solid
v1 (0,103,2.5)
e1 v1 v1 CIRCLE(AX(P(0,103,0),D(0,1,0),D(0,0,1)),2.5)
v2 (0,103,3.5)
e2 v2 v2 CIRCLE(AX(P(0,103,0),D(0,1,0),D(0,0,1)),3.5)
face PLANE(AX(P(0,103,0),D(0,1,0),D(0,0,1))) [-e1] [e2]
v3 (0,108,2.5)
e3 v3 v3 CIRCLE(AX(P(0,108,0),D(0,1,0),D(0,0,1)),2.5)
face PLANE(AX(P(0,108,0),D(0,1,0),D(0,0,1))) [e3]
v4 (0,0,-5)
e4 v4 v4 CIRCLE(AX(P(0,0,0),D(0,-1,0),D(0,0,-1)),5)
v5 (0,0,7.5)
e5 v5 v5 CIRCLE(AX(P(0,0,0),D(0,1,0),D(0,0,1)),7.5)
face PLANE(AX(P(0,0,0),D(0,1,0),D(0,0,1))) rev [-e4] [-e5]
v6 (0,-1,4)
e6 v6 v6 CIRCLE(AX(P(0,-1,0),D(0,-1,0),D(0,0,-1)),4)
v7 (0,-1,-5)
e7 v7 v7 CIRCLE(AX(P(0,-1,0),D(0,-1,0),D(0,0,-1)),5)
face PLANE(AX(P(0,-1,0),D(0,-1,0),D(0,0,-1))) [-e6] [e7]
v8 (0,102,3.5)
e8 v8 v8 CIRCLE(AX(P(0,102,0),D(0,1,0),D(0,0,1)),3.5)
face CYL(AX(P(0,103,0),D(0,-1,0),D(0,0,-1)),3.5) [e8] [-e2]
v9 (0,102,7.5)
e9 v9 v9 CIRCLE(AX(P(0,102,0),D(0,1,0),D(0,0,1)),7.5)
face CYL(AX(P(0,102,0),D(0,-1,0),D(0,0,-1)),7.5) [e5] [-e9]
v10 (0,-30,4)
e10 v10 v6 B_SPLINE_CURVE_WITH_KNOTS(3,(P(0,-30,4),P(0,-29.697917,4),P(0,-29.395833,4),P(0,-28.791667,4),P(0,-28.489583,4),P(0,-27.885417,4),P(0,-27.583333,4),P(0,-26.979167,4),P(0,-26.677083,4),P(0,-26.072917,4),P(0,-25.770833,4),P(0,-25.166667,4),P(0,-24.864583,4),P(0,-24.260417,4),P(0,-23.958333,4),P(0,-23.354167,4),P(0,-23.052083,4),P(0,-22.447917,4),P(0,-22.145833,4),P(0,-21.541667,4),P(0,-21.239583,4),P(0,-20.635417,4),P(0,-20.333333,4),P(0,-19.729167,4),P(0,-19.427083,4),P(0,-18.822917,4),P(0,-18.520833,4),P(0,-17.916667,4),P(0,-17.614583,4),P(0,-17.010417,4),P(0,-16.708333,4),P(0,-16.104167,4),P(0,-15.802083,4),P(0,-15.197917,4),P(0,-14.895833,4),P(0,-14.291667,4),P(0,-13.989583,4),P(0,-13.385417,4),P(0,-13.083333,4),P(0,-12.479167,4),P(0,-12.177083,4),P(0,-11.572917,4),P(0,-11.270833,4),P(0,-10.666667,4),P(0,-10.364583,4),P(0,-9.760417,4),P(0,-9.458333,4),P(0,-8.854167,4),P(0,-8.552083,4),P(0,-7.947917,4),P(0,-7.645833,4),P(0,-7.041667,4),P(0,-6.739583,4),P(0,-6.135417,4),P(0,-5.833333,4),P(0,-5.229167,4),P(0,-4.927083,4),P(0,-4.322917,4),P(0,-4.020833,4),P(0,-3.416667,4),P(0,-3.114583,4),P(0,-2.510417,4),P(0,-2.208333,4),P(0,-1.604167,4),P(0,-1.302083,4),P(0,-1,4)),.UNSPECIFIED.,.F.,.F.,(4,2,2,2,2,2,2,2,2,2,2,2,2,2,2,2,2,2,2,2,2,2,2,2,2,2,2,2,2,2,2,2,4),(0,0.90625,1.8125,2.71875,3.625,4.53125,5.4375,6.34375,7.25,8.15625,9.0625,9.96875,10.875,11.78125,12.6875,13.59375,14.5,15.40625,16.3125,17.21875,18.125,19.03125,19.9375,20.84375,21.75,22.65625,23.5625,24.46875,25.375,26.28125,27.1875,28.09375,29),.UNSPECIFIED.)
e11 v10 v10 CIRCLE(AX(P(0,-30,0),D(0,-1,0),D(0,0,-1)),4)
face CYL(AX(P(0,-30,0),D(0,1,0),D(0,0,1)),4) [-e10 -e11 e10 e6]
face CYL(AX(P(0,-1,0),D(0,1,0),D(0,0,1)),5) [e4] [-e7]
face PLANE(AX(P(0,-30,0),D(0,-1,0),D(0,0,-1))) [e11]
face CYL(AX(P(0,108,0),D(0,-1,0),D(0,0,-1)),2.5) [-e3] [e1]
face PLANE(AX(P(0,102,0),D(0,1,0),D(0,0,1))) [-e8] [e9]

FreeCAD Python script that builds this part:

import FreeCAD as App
import Part
import Sketcher
from FreeCAD import Vector

doc = App.newDocument("Part")
params = doc.addObject("Spreadsheet::Sheet", "Params")
for row, (alias, value) in enumerate([
    ("sketch1_diameter", "15 mm"),
    ("pad1_length", "102 mm"),
    ("sketch2_diameter", "10 mm"),
    ("pad2_length", "1 mm"),
    ("sketch3_diameter", "8 mm"),
    ("pad3_length", "29 mm"),
    ("sketch4_diameter", "7 mm"),
    ("pad4_length", "1 mm"),
    ("sketch5_diameter", "5 mm"),
    ("pad5_length", "5 mm"),
], start=1):
    params.set(f"A{row}", alias)
    params.set(f"B{row}", "=" + value)
    params.setAlias(f"B{row}", alias)

body = doc.addObject("PartDesign::Body", "Body")

# Sketch on XZ plane
sketch1 = body.newObject("Sketcher::SketchObject", "Sketch")
sketch1.AttachmentSupport = (doc.getObject("XZ_Plane"), [""])
sketch1.MapMode = "FlatFace"
sketch1.addGeometry(Part.Circle(Vector(0, 0, 0), Vector(0, 0, 1), 8), False)
sketch1.addConstraint(Sketcher.Constraint("Coincident", 0, 3, -1, 1))
sketch1.addConstraint(Sketcher.Constraint("Diameter", 0, 15.0))
sketch1.setExpression("Constraints[1]", "Params.sketch1_diameter")
pad1 = body.newObject("PartDesign::Pad", "Pad")
pad1.Profile = sketch1
pad1.setExpression("Length", "Params.pad1_length")
pad1.Reversed = True

# Sketch on XZ plane
sketch2 = body.newObject("Sketcher::SketchObject", "Sketch001")
sketch2.AttachmentSupport = (doc.getObject("XZ_Plane"), [""])
sketch2.MapMode = "FlatFace"
sketch2.addGeometry(Part.Circle(Vector(0, 0, 0), Vector(0, 0, 1), 5), False)
sketch2.addConstraint(Sketcher.Constraint("Coincident", 0, 3, -1, 1))
sketch2.addConstraint(Sketcher.Constraint("Diameter", 0, 10.0))
sketch2.setExpression("Constraints[1]", "Params.sketch2_diameter")
pad2 = body.newObject("PartDesign::Pad", "Pad001")
pad2.Profile = sketch2
pad2.setExpression("Length", "Params.pad2_length")

# Sketch on XZ plane
sketch3 = body.newObject("Sketcher::SketchObject", "Sketch002")
sketch3.AttachmentSupport = (doc.getObject("XZ_Plane"), [""])
sketch3.MapMode = "FlatFace"
sketch3.AttachmentOffset = App.Placement(Vector(0, 0, 1), App.Rotation())
sketch3.addGeometry(Part.Circle(Vector(0, 0, 0), Vector(0, 0, 1), 4), False)
sketch3.addConstraint(Sketcher.Constraint("Coincident", 0, 3, -1, 1))
sketch3.addConstraint(Sketcher.Constraint("Diameter", 0, 8.0))
sketch3.setExpression("Constraints[1]", "Params.sketch3_diameter")
pad3 = body.newObject("PartDesign::Pad", "Pad002")
pad3.Profile = sketch3
pad3.setExpression("Length", "Params.pad3_length")

# Sketch on XZ plane
sketch4 = body.newObject("Sketcher::SketchObject", "Sketch003")
sketch4.AttachmentSupport = (doc.getObject("XZ_Plane"), [""])
sketch4.MapMode = "FlatFace"
sketch4.AttachmentOffset = App.Placement(Vector(0, 0, -102), App.Rotation())
sketch4.addGeometry(Part.Circle(Vector(0, 0, 0), Vector(0, 0, 1), 3.5), False)
sketch4.addConstraint(Sketcher.Constraint("Coincident", 0, 3, -1, 1))
sketch4.addConstraint(Sketcher.Constraint("Diameter", 0, 7.0))
sketch4.setExpression("Constraints[1]", "Params.sketch4_diameter")
pad4 = body.newObject("PartDesign::Pad", "Pad003")
pad4.Profile = sketch4
pad4.setExpression("Length", "Params.pad4_length")
pad4.Reversed = True

# Sketch on XZ plane
sketch5 = body.newObject("Sketcher::SketchObject", "Sketch004")
sketch5.AttachmentSupport = (doc.getObject("XZ_Plane"), [""])
sketch5.MapMode = "FlatFace"
sketch5.AttachmentOffset = App.Placement(Vector(0, 0, -103), App.Rotation())
sketch5.addGeometry(Part.Circle(Vector(0, 0, 0), Vector(0, 0, 1), 2.5), False)
sketch5.addConstraint(Sketcher.Constraint("Coincident", 0, 3, -1, 1))
sketch5.addConstraint(Sketcher.Constraint("Diameter", 0, 5.0))
sketch5.setExpression("Constraints[1]", "Params.sketch5_diameter")
pad5 = body.newObject("PartDesign::Pad", "Pad004")
pad5.Profile = sketch5
pad5.setExpression("Length", "Params.pad5_length")
pad5.Reversed = True

doc.recompute()
